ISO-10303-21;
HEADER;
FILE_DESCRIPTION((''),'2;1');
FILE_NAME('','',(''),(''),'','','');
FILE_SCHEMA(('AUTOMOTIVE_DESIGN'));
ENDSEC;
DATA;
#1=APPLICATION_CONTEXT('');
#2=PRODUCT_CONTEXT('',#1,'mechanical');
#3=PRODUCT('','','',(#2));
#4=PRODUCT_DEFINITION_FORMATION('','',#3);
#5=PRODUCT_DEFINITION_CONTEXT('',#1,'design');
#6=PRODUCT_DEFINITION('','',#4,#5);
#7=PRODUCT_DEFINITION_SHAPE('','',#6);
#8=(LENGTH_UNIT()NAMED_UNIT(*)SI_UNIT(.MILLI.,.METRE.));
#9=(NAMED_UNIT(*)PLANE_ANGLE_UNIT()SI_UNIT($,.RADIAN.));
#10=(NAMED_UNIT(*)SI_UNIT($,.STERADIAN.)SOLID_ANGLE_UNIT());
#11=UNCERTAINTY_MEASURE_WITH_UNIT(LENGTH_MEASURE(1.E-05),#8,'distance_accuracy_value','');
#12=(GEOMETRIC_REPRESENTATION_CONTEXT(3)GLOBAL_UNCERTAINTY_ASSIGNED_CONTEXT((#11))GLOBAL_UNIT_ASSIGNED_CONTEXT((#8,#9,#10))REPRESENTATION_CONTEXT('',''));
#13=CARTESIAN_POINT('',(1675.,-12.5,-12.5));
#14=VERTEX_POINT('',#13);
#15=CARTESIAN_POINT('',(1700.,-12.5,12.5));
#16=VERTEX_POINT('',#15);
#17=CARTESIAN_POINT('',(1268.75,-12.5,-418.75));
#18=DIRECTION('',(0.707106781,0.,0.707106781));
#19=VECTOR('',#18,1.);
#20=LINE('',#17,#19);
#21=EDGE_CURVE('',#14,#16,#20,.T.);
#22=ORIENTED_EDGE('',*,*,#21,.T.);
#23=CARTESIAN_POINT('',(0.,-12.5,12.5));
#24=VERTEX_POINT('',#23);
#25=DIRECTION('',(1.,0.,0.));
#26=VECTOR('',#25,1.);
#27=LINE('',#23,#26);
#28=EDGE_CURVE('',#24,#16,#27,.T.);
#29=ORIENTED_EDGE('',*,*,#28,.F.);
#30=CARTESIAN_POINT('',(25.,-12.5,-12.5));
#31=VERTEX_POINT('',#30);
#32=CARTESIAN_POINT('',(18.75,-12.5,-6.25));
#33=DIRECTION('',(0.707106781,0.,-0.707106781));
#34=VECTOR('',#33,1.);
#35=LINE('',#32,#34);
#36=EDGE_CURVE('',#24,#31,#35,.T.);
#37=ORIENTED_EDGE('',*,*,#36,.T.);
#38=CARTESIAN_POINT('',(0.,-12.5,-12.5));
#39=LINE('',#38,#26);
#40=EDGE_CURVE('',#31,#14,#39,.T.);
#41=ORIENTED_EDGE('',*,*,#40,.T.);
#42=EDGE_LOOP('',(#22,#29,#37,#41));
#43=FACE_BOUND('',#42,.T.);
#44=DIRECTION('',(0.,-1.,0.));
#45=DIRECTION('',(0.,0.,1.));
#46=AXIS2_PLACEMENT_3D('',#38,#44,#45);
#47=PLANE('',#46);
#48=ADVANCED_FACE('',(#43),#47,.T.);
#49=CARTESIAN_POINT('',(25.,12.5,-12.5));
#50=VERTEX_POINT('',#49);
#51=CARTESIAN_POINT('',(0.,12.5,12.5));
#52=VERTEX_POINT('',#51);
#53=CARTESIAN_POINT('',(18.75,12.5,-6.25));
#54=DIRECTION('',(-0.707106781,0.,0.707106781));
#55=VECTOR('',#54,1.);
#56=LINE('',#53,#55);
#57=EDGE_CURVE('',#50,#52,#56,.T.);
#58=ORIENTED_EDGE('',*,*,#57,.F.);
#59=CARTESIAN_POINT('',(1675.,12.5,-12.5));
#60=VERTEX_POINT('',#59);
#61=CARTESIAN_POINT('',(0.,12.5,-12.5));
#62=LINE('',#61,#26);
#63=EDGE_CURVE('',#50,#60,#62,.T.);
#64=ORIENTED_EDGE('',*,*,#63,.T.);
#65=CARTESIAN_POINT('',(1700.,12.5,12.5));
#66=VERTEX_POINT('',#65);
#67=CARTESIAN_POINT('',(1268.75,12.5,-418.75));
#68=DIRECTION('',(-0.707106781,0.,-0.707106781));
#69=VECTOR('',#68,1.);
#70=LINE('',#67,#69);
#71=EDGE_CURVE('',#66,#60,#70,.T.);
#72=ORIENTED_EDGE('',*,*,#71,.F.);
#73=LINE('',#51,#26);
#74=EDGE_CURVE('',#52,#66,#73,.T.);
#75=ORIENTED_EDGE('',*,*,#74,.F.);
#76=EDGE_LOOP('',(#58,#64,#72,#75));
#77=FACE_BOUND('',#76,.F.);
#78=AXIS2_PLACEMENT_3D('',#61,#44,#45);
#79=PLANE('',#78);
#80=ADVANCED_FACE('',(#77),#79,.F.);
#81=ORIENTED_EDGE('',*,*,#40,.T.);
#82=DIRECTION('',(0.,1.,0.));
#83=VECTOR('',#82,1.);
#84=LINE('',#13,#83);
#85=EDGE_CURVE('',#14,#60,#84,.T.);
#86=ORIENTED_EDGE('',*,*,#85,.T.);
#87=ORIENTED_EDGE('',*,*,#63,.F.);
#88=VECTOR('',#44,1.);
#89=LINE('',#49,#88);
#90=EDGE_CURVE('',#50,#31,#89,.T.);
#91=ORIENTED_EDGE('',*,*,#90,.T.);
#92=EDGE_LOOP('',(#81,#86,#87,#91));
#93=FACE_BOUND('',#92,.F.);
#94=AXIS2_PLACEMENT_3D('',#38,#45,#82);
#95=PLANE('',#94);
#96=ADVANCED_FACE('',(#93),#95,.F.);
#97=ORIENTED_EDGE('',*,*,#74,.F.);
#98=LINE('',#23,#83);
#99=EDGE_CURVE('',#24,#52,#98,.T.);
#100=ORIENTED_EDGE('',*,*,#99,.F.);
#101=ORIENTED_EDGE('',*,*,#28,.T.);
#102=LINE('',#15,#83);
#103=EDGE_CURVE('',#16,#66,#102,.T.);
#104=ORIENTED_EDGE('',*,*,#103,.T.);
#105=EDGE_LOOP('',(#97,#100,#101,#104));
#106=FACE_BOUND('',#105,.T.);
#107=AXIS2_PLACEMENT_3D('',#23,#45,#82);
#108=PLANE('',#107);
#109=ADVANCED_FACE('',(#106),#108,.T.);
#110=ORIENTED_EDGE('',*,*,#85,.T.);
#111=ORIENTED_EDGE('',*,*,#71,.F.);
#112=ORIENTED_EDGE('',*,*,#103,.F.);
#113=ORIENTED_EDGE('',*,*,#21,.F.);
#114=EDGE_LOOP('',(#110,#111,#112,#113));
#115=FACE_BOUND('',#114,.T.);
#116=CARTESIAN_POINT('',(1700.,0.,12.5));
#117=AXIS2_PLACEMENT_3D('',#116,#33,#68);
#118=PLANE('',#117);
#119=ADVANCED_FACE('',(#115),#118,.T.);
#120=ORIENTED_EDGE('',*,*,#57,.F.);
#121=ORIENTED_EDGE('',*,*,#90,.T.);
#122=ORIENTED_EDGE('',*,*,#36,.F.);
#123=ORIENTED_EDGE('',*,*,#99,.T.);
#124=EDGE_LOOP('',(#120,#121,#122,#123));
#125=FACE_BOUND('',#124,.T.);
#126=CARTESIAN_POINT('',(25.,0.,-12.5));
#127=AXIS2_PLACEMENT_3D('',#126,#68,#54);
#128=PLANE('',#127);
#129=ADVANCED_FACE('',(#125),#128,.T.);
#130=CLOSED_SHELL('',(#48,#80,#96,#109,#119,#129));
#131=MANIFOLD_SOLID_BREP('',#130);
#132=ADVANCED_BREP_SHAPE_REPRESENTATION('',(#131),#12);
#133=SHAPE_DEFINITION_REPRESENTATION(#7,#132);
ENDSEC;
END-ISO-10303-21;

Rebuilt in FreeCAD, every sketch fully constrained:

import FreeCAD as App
import Part
import Sketcher
from FreeCAD import Vector
Q = App.Units.Quantity

doc = App.newDocument("Part")
params = doc.addObject("Spreadsheet::Sheet", "Params")
for row, (alias, value) in enumerate([
    ("sketch1_width", "25 mm"),
    ("pad1_length", "1700 mm"),
    ("sketch2_width", "25 mm"),
    ("sketch3_width", "25 mm"),
], start=1):
    params.set(f"A{row}", alias)
    params.set(f"B{row}", "=" + value)
    params.setAlias(f"B{row}", alias)

body = doc.addObject("PartDesign::Body", "Body")

# Sketch on YZ plane
sketch1 = doc.addObject("Sketcher::SketchObject", "Sketch")
body.addObject(sketch1)
sketch1.AttachmentSupport = (doc.YZ_Plane, [""])
sketch1.MapMode = "FlatFace"
sketch1.addGeometry([
    Part.LineSegment(Vector(-12, 12, 0), Vector(-12, -12, 0)),
    Part.LineSegment(Vector(-12, -12, 0), Vector(12, -12, 0)),
    Part.LineSegment(Vector(12, -12, 0), Vector(12, 12, 0)),
    Part.LineSegment(Vector(12, 12, 0), Vector(-12, 12, 0)),
], False)
sketch1.addConstraint([
    Sketcher.Constraint("Coincident", 0, 2, 1, 1),
    Sketcher.Constraint("Coincident", 1, 2, 2, 1),
    Sketcher.Constraint("Coincident", 2, 2, 3, 1),
    Sketcher.Constraint("Coincident", 3, 2, 0, 1),
    Sketcher.Constraint("Vertical", 0),
    Sketcher.Constraint("Horizontal", 1),
    Sketcher.Constraint("Vertical", 2),
    Sketcher.Constraint("Horizontal", 3),
    Sketcher.Constraint("Symmetric", 0, 2, 2, 2, -1, 1),
    Sketcher.Constraint("Equal", 3, 0),
    Sketcher.Constraint("DistanceX", 1, 1, 1, 2, Q("25 mm")),
])
sketch1.setExpression("Constraints[10]", "Params.sketch1_width")
pad1 = doc.addObject("PartDesign::Pad", "Pad")
body.addObject(pad1)
pad1.Profile = sketch1
pad1.setExpression("Length", "Params.pad1_length")

# Sketch on XZ plane
sketch2 = doc.addObject("Sketcher::SketchObject", "Sketch001")
body.addObject(sketch2)
sketch2.AttachmentSupport = (doc.XZ_Plane, [""])
sketch2.MapMode = "FlatFace"
sketch2.addGeometry([
    Part.LineSegment(Vector(25, -12, 0), Vector(0, 12, 0)),
    Part.LineSegment(Vector(0, 12, 0), Vector(0, -12, 0)),
    Part.LineSegment(Vector(0, -12, 0), Vector(25, -12, 0)),
], False)
sketch2.addConstraint([
    Sketcher.Constraint("Coincident", 0, 2, 1, 1),
    Sketcher.Constraint("Coincident", 1, 2, 2, 1),
    Sketcher.Constraint("Coincident", 2, 2, 0, 1),
    Sketcher.Constraint("Vertical", 1),
    Sketcher.Constraint("Horizontal", 2),
    Sketcher.Constraint("Symmetric", 0, 2, 1, 2, -1, 1),
    Sketcher.Constraint("Equal", 2, 1),
    Sketcher.Constraint("DistanceX", 2, 1, 2, 2, Q("25 mm")),
])
sketch2.setExpression("Constraints[7]", "Params.sketch2_width")
pocket1 = doc.addObject("PartDesign::Pocket", "Pocket")
body.addObject(pocket1)
pocket1.Profile = sketch2
pocket1.Type = "ThroughAll"
pocket1.Midplane = True

# Sketch on XZ plane
sketch3 = doc.addObject("Sketcher::SketchObject", "Sketch002")
body.addObject(sketch3)
sketch3.AttachmentSupport = (doc.XZ_Plane, [""])
sketch3.MapMode = "FlatFace"
sketch3.addGeometry([
    Part.LineSegment(Vector(1700, -12, 0), Vector(1700, 12, 0)),
    Part.LineSegment(Vector(1700, 12, 0), Vector(1675, -12, 0)),
    Part.LineSegment(Vector(1675, -12, 0), Vector(1700, -12, 0)),
], False)
sketch3.addConstraint([
    Sketcher.Constraint("Coincident", 0, 2, 1, 1),
    Sketcher.Constraint("Coincident", 1, 2, 2, 1),
    Sketcher.Constraint("Coincident", 2, 2, 0, 1),
    Sketcher.Constraint("Vertical", 0),
    Sketcher.Constraint("Horizontal", 2),
    Sketcher.Constraint("Equal", 2, 0),
    Sketcher.Constraint("DistanceX", 2, 1, 2, 2, Q("25 mm")),
    Sketcher.Constraint("DistanceX", -1, 1, 0, 2, Q("1700 mm")),
    Sketcher.Constraint("DistanceY", -1, 1, 0, 2, Q("12.5 mm")),
])
sketch3.setExpression("Constraints[6]", "Params.sketch3_width")
pocket2 = doc.addObject("PartDesign::Pocket", "Pocket001")
body.addObject(pocket2)
pocket2.Profile = sketch3
pocket2.Type = "ThroughAll"
pocket2.Midplane = True

doc.recompute()
